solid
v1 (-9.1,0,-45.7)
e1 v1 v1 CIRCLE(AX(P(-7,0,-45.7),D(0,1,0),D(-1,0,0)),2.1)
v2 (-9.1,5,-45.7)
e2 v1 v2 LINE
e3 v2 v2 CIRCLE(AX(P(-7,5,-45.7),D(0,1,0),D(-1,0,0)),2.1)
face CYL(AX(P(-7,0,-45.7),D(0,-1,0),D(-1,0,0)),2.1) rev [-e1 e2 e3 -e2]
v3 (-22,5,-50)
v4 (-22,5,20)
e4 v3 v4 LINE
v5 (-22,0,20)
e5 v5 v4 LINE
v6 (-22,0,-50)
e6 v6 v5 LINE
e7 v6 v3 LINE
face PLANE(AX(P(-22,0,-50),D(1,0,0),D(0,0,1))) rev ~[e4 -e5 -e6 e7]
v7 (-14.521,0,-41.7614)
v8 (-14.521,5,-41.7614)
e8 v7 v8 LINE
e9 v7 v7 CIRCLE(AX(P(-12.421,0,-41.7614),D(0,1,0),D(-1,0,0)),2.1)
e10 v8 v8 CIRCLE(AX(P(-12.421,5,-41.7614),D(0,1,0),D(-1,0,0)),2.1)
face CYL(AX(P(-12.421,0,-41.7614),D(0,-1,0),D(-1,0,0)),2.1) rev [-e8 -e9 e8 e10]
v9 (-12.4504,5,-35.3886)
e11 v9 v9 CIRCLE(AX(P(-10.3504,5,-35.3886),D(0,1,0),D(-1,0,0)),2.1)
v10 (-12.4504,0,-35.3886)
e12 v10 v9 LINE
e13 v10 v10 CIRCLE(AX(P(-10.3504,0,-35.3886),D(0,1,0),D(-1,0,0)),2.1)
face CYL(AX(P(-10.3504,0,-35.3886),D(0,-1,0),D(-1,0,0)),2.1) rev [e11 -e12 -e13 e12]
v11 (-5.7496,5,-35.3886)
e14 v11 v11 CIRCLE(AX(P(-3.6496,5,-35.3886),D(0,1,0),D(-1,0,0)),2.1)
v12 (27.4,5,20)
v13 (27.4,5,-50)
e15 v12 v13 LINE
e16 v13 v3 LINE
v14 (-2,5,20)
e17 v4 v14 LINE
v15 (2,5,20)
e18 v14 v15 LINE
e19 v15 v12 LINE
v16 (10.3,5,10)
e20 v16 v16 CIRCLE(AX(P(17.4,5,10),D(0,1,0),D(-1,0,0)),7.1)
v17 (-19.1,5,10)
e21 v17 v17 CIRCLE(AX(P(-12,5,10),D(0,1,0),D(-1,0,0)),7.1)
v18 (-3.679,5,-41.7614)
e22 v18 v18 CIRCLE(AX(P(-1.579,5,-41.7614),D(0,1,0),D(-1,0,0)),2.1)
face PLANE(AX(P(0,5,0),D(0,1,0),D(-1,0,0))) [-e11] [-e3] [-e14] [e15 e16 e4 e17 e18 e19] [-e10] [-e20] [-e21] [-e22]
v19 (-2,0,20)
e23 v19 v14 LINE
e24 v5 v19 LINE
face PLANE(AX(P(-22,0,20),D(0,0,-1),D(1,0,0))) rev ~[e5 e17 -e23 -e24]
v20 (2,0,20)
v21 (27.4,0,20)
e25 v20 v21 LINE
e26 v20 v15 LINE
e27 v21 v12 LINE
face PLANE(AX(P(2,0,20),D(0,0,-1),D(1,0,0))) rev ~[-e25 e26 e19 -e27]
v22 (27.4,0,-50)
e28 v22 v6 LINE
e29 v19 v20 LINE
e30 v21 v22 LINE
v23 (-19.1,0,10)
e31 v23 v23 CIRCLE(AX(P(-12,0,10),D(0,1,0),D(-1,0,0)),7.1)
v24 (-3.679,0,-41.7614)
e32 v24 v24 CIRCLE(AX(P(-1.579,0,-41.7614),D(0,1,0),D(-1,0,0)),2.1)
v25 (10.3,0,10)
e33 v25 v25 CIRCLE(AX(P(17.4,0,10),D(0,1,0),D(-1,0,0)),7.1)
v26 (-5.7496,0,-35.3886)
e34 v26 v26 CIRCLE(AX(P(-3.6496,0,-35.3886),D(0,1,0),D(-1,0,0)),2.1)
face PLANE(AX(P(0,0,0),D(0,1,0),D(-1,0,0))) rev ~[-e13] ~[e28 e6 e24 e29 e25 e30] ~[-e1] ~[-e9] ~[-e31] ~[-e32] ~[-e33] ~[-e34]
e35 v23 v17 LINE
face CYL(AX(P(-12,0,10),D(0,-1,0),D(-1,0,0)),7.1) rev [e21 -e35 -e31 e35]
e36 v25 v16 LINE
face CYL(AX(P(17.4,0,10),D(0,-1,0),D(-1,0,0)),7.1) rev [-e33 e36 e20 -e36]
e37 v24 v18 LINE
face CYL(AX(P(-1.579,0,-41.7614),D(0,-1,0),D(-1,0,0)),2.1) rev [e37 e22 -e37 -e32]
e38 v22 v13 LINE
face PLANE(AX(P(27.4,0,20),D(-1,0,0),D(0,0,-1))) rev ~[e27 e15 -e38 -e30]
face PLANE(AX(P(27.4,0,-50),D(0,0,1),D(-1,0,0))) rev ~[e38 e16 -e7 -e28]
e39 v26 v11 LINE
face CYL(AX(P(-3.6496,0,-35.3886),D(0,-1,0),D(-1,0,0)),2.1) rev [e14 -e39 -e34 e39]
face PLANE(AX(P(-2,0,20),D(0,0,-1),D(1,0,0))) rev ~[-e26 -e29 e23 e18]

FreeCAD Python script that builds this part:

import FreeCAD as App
import Part
import Sketcher

V = App.Vector
Q = App.Units.Quantity


def add_polygon(sketch, points):
    """Adds a closed chain of lines whose ends are joined by coincident constraints."""
    first, n = sketch.GeometryCount, len(points)
    for a, b in zip(points, points[1:] + points[:1]):
        sketch.addGeometry(Part.LineSegment(App.Vector(*a, 0), App.Vector(*b, 0)), False)
    for i in range(n):
        sketch.addConstraint(Sketcher.Constraint("Coincident", first + i, 2, first + (i + 1) % n, 1))

doc = App.newDocument("Part")
body = doc.addObject("PartDesign::Body", "Body")

sketch1 = body.newObject("Sketcher::SketchObject", "Sketch")
sketch1.AttachmentSupport = (doc.getObject("XZ_Plane"), [""])
sketch1.MapMode = "FlatFace"
add_polygon(sketch1, [(27.4, 20), (27.4, -50), (-22, -50), (-22, 20)])
sketch1.addGeometry(Part.Circle(V(-1.579, -41.7614, 0), V(0, 0, 1), 2.1), False)
sketch1.addGeometry(Part.Circle(V(-7, -45.7, 0), V(0, 0, 1), 2.1), False)
sketch1.addGeometry(Part.Circle(V(-3.6496, -35.3886, 0), V(0, 0, 1), 2.1), False)
sketch1.addGeometry(Part.Circle(V(-12.421, -41.7614, 0), V(0, 0, 1), 2.1), False)
sketch1.addGeometry(Part.Circle(V(-10.3504, -35.3886, 0), V(0, 0, 1), 2.1), False)
sketch1.addGeometry(Part.Circle(V(17.4, 10, 0), V(0, 0, 1), 7.1), False)
sketch1.addGeometry(Part.Circle(V(-12, 10, 0), V(0, 0, 1), 7.1), False)
sketch1.addConstraint([
    Sketcher.Constraint("Vertical", 0),
    Sketcher.Constraint("Horizontal", 1),
    Sketcher.Constraint("Vertical", 2),
    Sketcher.Constraint("Horizontal", 3),
    Sketcher.Constraint("Equal", 4, 5),
    Sketcher.Constraint("Equal", 5, 6),
    Sketcher.Constraint("Equal", 6, 7),
    Sketcher.Constraint("Equal", 7, 8),
    Sketcher.Constraint("Equal", 9, 10),
    Sketcher.Constraint("Horizontal", 4, 3, 7, 3),
    Sketcher.Constraint("Horizontal", 6, 3, 8, 3),
    Sketcher.Constraint("Horizontal", 9, 3, 10, 3),
    Sketcher.Constraint("Diameter", 4, Q("4.2 mm")),
    Sketcher.Constraint("Diameter", 9, Q("14.2 mm")),
    Sketcher.Constraint("DistanceY", 0, 2, 0, 1, Q("70 mm")),
    Sketcher.Constraint("DistanceY", -1, 1, 9, 3, Q("10 mm")),
    Sketcher.Constraint("DistanceX", 1, 2, 5, 3, Q("15 mm")),
    Sketcher.Constraint("DistanceX", 2, 2, 10, 3, Q("10 mm")),
    Sketcher.Constraint("DistanceY", 10, 3, 2, 2, Q("10 mm")),
    Sketcher.Constraint("DistanceX", 9, 3, 3, 2, Q("10 mm")),
    Sketcher.Constraint("DistanceX", 10, 3, 9, 3, Q("29.4 mm")),
    Sketcher.Constraint("DistanceX", 5, 3, -1, 1, Q("7 mm")),
    Sketcher.Constraint("DistanceY", 5, 3, -1, 1, Q("45.7 mm")),
    Sketcher.Constraint("DistanceX", 4, 3, -1, 1, Q("1.579 mm")),
    Sketcher.Constraint("DistanceX", 7, 3, -1, 1, Q("12.421 mm")),
    Sketcher.Constraint("DistanceY", 4, 3, -1, 1, Q("41.7614 mm")),
    Sketcher.Constraint("DistanceX", 6, 3, -1, 1, Q("3.6496 mm")),
    Sketcher.Constraint("DistanceY", 6, 3, -1, 1, Q("35.3886 mm")),
    Sketcher.Constraint("DistanceX", 8, 3, -1, 1, Q("10.3504 mm")),
])
pad1 = body.newObject("PartDesign::Pad", "Pad")
pad1.Profile = sketch1
pad1.Length = 5
pad1.Reversed = True

doc.recompute()
